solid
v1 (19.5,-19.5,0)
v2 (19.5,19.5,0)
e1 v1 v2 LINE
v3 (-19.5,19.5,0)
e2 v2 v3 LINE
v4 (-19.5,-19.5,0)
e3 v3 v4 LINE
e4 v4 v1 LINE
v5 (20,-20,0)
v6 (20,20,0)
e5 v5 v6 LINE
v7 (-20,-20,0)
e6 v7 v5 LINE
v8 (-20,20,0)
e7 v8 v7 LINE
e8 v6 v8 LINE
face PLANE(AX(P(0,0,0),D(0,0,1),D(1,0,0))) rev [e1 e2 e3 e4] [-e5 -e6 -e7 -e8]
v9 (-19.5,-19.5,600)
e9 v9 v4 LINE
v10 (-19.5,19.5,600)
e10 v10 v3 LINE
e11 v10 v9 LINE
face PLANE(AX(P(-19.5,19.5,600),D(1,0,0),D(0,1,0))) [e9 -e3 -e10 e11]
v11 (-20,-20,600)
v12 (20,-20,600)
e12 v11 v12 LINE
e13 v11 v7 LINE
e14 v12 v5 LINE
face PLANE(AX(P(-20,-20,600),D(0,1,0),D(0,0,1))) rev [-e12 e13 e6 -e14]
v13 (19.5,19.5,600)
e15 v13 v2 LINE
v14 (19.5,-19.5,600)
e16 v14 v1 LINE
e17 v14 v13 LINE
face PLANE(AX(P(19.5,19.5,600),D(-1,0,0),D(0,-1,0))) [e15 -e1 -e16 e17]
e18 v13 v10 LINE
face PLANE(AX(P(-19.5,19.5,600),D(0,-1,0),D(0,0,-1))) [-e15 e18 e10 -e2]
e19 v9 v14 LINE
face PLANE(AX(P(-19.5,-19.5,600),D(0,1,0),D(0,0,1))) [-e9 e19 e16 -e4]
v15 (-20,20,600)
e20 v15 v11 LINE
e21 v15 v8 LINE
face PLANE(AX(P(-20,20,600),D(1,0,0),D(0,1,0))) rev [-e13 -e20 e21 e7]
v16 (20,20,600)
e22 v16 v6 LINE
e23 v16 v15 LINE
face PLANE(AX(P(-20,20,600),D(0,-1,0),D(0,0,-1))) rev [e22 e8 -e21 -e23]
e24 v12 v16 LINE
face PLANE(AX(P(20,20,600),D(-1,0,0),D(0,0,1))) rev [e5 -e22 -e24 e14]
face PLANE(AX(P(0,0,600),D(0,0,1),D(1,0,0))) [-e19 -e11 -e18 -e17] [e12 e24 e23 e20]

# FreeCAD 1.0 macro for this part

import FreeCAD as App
import Part
import Sketcher


def add_polygon(sketch, points):
    """Adds a closed chain of lines whose ends are joined by coincident constraints."""
    first, n = sketch.GeometryCount, len(points)
    for a, b in zip(points, points[1:] + points[:1]):
        sketch.addGeometry(Part.LineSegment(App.Vector(*a, 0), App.Vector(*b, 0)), False)
    for i in range(n):
        sketch.addConstraint(Sketcher.Constraint("Coincident", first + i, 2, first + (i + 1) % n, 1))

doc = App.newDocument("Part")
body = doc.addObject("PartDesign::Body", "Body")

# Sketch on XY plane
sketch1 = body.newObject("Sketcher::SketchObject", "Sketch")
sketch1.AttachmentSupport = (doc.getObject("XY_Plane"), [""])
sketch1.MapMode = "FlatFace"
add_polygon(sketch1, [(-20, 20), (-20, -20), (20, -20), (20, 20)])  # lines 0-3
add_polygon(sketch1, [(19.5, -19.5), (-19.5, -19.5), (-19.5, 19.5), (19.5, 19.5)])  # lines 4-7
sketch1.addConstraint(Sketcher.Constraint("Vertical", 0))
sketch1.addConstraint(Sketcher.Constraint("Horizontal", 1))
sketch1.addConstraint(Sketcher.Constraint("Vertical", 2))
sketch1.addConstraint(Sketcher.Constraint("Horizontal", 3))
sketch1.addConstraint(Sketcher.Constraint("Horizontal", 4))
sketch1.addConstraint(Sketcher.Constraint("Vertical", 5))
sketch1.addConstraint(Sketcher.Constraint("Horizontal", 6))
sketch1.addConstraint(Sketcher.Constraint("Vertical", 7))
sketch1.addConstraint(Sketcher.Constraint("Symmetric", 0, 2, 2, 2, -1, 1))
sketch1.addConstraint(Sketcher.Constraint("Symmetric", 4, 2, 6, 2, -1, 1))
sketch1.addConstraint(Sketcher.Constraint("Equal", 3, 0))
sketch1.addConstraint(Sketcher.Constraint("Equal", 6, 5))
sketch1.addConstraint(Sketcher.Constraint("DistanceX", 1, 1, 1, 2, 40.0))
sketch1.addConstraint(Sketcher.Constraint("DistanceX", 4, 2, 4, 1, 39.0))
pad1 = body.newObject("PartDesign::Pad", "Pad")
pad1.Profile = sketch1
pad1.Length = 600

doc.recompute()
